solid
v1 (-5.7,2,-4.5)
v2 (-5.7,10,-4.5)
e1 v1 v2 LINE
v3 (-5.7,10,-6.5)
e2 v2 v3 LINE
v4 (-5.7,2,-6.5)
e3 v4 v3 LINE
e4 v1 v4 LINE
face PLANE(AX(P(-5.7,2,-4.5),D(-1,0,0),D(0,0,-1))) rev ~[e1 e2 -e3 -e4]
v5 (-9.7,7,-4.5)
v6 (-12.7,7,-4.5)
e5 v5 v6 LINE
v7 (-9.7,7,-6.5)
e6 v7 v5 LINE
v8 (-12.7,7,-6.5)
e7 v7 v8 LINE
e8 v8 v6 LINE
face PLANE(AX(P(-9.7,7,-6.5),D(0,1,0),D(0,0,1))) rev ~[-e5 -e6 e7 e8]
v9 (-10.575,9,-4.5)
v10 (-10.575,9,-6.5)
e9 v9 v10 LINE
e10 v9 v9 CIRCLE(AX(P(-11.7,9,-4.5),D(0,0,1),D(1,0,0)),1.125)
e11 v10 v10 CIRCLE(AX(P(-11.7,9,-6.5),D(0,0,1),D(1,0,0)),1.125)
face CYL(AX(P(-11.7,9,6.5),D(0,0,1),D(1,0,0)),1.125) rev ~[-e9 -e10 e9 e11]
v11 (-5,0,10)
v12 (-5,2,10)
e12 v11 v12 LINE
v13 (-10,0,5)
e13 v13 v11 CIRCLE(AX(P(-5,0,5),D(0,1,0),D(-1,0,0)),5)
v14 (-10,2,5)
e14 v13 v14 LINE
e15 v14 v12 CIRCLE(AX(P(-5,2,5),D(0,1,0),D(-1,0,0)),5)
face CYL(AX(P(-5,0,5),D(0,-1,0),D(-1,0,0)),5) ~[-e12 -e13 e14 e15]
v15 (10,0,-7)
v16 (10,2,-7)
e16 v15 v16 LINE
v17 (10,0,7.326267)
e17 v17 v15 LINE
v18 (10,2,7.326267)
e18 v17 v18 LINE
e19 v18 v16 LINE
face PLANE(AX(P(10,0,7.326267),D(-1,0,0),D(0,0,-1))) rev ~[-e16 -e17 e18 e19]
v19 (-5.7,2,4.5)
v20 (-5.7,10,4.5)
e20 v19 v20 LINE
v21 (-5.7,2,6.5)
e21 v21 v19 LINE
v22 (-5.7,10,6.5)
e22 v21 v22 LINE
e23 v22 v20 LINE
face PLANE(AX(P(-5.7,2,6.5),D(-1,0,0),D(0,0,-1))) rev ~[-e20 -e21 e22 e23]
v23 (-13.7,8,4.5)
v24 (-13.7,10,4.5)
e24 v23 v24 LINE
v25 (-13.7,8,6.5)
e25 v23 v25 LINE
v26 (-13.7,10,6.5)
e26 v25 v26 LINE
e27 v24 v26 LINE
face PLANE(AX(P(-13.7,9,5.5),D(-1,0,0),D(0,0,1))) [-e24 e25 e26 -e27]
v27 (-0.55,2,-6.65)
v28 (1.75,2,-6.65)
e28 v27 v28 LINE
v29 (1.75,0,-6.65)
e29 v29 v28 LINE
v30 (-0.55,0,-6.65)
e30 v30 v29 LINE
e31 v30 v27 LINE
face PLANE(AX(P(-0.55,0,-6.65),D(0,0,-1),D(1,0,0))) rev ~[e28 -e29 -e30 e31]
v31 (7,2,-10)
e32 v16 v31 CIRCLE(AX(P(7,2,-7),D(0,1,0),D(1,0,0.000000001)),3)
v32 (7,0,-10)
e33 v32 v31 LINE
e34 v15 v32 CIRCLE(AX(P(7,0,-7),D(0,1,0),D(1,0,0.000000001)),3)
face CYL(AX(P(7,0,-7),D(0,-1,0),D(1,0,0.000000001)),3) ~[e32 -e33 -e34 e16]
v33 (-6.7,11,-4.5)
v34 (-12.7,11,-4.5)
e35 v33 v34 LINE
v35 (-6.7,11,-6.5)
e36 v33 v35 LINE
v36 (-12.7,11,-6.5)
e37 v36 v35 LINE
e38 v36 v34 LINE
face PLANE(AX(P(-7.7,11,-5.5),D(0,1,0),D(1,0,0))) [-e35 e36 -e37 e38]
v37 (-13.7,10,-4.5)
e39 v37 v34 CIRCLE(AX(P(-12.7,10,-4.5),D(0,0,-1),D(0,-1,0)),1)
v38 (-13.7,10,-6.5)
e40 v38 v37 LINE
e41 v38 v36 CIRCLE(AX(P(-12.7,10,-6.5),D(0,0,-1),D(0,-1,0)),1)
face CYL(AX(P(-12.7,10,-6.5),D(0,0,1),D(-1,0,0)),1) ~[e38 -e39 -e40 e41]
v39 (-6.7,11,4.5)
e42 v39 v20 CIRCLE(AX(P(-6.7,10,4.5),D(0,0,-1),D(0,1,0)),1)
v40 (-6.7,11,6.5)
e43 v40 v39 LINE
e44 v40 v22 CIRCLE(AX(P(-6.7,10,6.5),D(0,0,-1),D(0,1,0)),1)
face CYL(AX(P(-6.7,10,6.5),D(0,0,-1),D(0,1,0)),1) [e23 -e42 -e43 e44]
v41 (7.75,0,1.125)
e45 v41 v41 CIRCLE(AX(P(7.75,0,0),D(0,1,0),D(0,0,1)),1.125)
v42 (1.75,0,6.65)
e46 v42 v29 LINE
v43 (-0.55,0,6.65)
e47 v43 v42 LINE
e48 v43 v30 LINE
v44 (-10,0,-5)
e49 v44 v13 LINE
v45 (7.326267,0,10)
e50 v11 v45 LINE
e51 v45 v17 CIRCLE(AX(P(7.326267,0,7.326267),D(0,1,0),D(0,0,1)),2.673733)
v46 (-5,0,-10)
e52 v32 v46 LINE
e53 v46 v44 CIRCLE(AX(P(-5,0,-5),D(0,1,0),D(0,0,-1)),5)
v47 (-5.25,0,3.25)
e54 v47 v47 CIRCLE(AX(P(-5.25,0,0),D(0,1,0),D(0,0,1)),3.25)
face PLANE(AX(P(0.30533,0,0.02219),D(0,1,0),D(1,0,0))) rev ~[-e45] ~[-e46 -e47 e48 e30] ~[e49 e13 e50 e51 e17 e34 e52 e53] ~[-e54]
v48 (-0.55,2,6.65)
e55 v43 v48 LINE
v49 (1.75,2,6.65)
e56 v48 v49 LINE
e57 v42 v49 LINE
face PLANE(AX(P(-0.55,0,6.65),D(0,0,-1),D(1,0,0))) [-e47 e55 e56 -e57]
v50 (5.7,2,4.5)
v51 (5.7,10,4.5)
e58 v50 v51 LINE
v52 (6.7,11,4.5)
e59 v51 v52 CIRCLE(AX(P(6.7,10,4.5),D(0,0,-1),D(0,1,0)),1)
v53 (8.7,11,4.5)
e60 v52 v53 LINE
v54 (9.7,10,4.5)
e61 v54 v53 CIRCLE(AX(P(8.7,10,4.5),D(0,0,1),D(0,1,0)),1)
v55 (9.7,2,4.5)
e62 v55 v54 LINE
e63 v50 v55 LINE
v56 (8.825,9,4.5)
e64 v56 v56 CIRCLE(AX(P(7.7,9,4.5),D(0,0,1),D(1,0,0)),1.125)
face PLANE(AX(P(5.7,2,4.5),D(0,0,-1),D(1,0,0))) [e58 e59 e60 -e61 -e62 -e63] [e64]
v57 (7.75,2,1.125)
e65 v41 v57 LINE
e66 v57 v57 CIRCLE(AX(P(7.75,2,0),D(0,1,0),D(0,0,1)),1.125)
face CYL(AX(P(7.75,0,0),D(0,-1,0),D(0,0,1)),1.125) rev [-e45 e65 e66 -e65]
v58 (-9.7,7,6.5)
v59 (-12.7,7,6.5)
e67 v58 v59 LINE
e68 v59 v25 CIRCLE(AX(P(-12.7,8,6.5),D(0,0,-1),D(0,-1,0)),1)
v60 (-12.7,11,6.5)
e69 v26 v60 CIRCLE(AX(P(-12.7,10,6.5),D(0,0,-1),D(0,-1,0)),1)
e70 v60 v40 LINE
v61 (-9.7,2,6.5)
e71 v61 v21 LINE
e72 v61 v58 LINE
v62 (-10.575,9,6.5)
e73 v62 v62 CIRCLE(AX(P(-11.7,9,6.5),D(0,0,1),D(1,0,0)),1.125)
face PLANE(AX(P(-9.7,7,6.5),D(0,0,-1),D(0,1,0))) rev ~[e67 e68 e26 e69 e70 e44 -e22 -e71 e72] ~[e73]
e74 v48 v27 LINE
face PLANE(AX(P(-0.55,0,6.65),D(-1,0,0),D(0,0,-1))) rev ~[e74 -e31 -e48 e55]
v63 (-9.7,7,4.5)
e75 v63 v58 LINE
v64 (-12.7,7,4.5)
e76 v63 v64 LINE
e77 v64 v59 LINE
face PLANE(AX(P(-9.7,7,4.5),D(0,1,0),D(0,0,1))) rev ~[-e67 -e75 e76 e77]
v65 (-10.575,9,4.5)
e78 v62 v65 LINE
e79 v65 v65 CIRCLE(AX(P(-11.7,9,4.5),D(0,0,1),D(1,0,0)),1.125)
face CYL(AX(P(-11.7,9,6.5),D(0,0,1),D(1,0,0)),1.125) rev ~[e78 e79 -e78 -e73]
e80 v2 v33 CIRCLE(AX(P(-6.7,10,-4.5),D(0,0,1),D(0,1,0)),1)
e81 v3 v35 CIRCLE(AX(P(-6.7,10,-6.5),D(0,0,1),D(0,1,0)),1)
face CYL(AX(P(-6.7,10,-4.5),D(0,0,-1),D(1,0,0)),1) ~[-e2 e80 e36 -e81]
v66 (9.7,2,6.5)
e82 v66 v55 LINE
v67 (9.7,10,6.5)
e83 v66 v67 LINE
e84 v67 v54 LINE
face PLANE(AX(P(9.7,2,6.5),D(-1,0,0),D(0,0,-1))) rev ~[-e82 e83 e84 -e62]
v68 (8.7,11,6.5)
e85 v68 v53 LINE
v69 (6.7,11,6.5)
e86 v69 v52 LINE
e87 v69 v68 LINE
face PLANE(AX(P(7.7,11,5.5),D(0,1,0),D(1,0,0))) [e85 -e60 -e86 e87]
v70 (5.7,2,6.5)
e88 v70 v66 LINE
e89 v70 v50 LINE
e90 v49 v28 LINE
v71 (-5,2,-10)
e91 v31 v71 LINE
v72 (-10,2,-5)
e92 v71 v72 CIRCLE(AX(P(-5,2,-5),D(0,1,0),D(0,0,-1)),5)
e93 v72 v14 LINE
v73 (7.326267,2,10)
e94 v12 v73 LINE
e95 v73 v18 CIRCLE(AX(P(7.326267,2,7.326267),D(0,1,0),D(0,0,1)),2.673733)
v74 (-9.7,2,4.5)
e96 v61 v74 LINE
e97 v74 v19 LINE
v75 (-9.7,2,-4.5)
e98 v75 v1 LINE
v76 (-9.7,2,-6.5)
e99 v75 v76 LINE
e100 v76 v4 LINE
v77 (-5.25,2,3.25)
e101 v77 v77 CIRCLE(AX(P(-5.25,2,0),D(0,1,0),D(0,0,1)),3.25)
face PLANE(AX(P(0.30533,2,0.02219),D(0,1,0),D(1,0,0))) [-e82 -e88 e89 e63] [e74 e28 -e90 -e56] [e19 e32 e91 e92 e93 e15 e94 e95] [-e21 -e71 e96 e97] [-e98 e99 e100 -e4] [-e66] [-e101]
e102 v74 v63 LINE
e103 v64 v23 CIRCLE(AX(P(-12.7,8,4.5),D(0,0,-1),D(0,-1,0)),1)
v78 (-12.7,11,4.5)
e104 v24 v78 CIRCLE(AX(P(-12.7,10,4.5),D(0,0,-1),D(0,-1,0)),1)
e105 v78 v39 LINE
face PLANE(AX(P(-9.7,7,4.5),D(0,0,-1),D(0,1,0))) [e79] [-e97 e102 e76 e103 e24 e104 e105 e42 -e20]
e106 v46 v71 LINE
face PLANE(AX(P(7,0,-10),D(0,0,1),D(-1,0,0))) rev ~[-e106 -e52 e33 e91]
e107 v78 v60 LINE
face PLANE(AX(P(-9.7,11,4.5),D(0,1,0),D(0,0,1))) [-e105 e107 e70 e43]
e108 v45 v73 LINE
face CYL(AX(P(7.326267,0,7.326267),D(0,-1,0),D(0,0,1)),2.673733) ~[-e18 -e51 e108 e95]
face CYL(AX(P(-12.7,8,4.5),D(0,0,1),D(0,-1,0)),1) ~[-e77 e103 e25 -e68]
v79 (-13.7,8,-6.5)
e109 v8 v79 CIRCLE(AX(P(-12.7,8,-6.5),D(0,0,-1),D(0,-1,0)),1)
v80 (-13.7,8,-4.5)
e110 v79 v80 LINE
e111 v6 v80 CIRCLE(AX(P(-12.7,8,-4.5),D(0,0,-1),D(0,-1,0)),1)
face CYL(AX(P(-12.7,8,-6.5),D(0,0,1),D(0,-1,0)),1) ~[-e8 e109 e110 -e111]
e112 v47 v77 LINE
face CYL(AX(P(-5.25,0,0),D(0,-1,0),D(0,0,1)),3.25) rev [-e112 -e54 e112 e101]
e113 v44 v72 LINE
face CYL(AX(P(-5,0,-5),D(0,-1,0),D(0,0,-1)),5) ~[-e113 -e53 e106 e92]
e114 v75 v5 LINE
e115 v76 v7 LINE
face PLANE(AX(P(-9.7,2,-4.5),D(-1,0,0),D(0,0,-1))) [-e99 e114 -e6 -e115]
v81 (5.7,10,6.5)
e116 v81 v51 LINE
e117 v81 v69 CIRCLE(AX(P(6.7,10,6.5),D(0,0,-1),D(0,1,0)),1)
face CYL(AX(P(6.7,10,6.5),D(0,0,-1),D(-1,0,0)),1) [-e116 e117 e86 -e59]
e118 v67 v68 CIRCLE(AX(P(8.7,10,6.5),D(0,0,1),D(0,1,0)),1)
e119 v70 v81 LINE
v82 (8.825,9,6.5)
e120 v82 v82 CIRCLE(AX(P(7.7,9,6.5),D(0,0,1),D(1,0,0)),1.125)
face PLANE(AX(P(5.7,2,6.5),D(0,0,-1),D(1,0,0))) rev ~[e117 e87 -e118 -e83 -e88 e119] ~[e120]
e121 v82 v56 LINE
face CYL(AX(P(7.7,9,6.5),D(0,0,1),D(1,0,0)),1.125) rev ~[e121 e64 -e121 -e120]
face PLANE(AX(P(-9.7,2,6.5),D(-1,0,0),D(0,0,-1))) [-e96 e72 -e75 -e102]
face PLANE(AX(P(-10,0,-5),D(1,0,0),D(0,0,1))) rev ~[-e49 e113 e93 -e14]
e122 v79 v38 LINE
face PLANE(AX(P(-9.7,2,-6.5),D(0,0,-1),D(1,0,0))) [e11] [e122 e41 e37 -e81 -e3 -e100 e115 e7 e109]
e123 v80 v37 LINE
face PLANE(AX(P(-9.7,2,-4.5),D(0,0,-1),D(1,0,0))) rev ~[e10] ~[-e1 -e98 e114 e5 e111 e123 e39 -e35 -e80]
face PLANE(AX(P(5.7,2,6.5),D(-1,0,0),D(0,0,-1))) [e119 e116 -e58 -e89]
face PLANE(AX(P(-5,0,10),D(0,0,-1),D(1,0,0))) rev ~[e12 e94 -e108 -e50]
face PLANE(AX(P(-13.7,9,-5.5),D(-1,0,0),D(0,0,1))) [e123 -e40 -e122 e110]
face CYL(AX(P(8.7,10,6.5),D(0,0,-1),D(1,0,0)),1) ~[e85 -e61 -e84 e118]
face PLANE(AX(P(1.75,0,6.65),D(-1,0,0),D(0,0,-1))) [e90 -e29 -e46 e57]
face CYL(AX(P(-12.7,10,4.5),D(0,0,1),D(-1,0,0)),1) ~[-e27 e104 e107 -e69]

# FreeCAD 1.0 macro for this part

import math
import FreeCAD as App
import Part
import Sketcher
Q = App.Units.Quantity


def edges_at(feature, points):
    """Names of the edges that pass closest to the given points."""
    edges = feature.Shape.Edges
    near = lambda p: min(range(len(edges)), key=lambda i: edges[i].distToShape(Part.Vertex(*p))[0])
    return sorted({f"Edge{near(p) + 1}" for p in points})

doc = App.newDocument("Part")
body = doc.addObject("PartDesign::Body", "Body")

sketch1 = body.newObject("Sketcher::SketchObject", "Sketch")
sketch1.AttachmentSupport = (doc.getObject("XZ_Plane"), [""])
sketch1.MapMode = "FlatFace"
sketch1.addGeometry(Part.LineSegment(App.Vector(-5, 10, 0), App.Vector(7.3, 10, 0)), False)
sketch1.addGeometry(Part.ArcOfCircle(Part.Circle(App.Vector(7.3, 7.3, 0), App.Vector(0, 0, 1), 2.7), math.radians(0), math.radians(90)), False)
sketch1.addGeometry(Part.LineSegment(App.Vector(10, 7.3, 0), App.Vector(10, -7, 0)), False)
sketch1.addGeometry(Part.ArcOfCircle(Part.Circle(App.Vector(7, -7, 0), App.Vector(0, 0, 1), 3), math.radians(-90), math.radians(0)), False)
sketch1.addGeometry(Part.LineSegment(App.Vector(7, -10, 0), App.Vector(-5, -10, 0)), False)
sketch1.addGeometry(Part.ArcOfCircle(Part.Circle(App.Vector(-5, -5, 0), App.Vector(0, 0, 1), 5), math.radians(180), math.radians(270)), False)
sketch1.addGeometry(Part.LineSegment(App.Vector(-10, -5, 0), App.Vector(-10, 5, 0)), False)
sketch1.addGeometry(Part.ArcOfCircle(Part.Circle(App.Vector(-5, 5, 0), App.Vector(0, 0, 1), 5), math.radians(90), math.radians(180)), False)
sketch1.addGeometry(Part.Circle(App.Vector(-5.2, 0, 0), App.Vector(0, 0, 1), 3.2), False)
sketch1.addGeometry(Part.LineSegment(App.Vector(1.8, 6.7, 0), App.Vector(-0.6, 6.7, 0)), False)
sketch1.addGeometry(Part.LineSegment(App.Vector(-0.6, 6.7, 0), App.Vector(-0.6, -6.7, 0)), False)
sketch1.addGeometry(Part.LineSegment(App.Vector(-0.6, -6.7, 0), App.Vector(1.8, -6.7, 0)), False)
sketch1.addGeometry(Part.LineSegment(App.Vector(1.8, -6.7, 0), App.Vector(1.8, 6.7, 0)), False)
sketch1.addGeometry(Part.Circle(App.Vector(7.8, 0, 0), App.Vector(0, 0, 1), 1.1), False)
sketch1.addConstraint(Sketcher.Constraint("Tangent", 0, 2, 1, 2))
sketch1.addConstraint(Sketcher.Constraint("Tangent", 1, 1, 2, 1))
sketch1.addConstraint(Sketcher.Constraint("Tangent", 2, 2, 3, 2))
sketch1.addConstraint(Sketcher.Constraint("Tangent", 3, 1, 4, 1))
sketch1.addConstraint(Sketcher.Constraint("Tangent", 4, 2, 5, 2))
sketch1.addConstraint(Sketcher.Constraint("Tangent", 5, 1, 6, 1))
sketch1.addConstraint(Sketcher.Constraint("Tangent", 6, 2, 7, 2))
sketch1.addConstraint(Sketcher.Constraint("Tangent", 7, 1, 0, 1))
sketch1.addConstraint(Sketcher.Constraint("Coincident", 9, 2, 10, 1))
sketch1.addConstraint(Sketcher.Constraint("Coincident", 10, 2, 11, 1))
sketch1.addConstraint(Sketcher.Constraint("Coincident", 11, 2, 12, 1))
sketch1.addConstraint(Sketcher.Constraint("Coincident", 12, 2, 9, 1))
sketch1.addConstraint(Sketcher.Constraint("Horizontal", 0))
sketch1.addConstraint(Sketcher.Constraint("Vertical", 2))
sketch1.addConstraint(Sketcher.Constraint("Horizontal", 4))
sketch1.addConstraint(Sketcher.Constraint("Vertical", 6))
sketch1.addConstraint(Sketcher.Constraint("Horizontal", 9))
sketch1.addConstraint(Sketcher.Constraint("Vertical", 10))
sketch1.addConstraint(Sketcher.Constraint("Horizontal", 11))
sketch1.addConstraint(Sketcher.Constraint("Vertical", 12))
sketch1.addConstraint(Sketcher.Constraint("Equal", 5, 7))
sketch1.addConstraint(Sketcher.Constraint("PointOnObject", 8, 3, -1))
sketch1.addConstraint(Sketcher.Constraint("PointOnObject", 13, 3, -1))
sketch1.addConstraint(Sketcher.Constraint("Radius", 3, Q("3 mm")))
sketch1.addConstraint(Sketcher.Constraint("Radius", 5, Q("5 mm")))
sketch1.addConstraint(Sketcher.Constraint("Diameter", 8, Q("6.5 mm")))
sketch1.addConstraint(Sketcher.Constraint("Diameter", 13, Q("2.25 mm")))
sketch1.addConstraint(Sketcher.Constraint("DistanceX", 4, 2, 4, 1, Q("12 mm")))
sketch1.addConstraint(Sketcher.Constraint("DistanceY", 6, 1, 6, 2, Q("10 mm")))
sketch1.addConstraint(Sketcher.Constraint("DistanceX", 9, 2, 9, 1, Q("2.3 mm")))
sketch1.addConstraint(Sketcher.Constraint("DistanceY", 10, 2, 10, 1, Q("13.3 mm")))
sketch1.addConstraint(Sketcher.Constraint("DistanceX", -1, 1, 3, 3, Q("7 mm")))
sketch1.addConstraint(Sketcher.Constraint("DistanceY", 3, 3, -1, 1, Q("7 mm")))
sketch1.addConstraint(Sketcher.Constraint("DistanceX", 8, 3, 13, 3, Q("13 mm")))
sketch1.addConstraint(Sketcher.Constraint("DistanceX", 8, 3, 9, 2, Q("4.7 mm")))
sketch1.addConstraint(Sketcher.Constraint("DistanceX", 8, 3, -1, 1, Q("5.25 mm")))
sketch1.addConstraint(Sketcher.Constraint("DistanceY", -1, 1, 9, 2, Q("6.65 mm")))
sketch1.addConstraint(Sketcher.Constraint("Radius", 1, Q("2.673733 mm")))
pad1 = body.newObject("PartDesign::Pad", "Pad")
pad1.Profile = sketch1
pad1.Length = 2
pad1.Reversed = True

sketch2 = body.newObject("Sketcher::SketchObject", "Sketch001")
sketch2.AttachmentSupport = (doc.getObject("XZ_Plane"), [""])
sketch2.MapMode = "FlatFace"
sketch2.AttachmentOffset = App.Placement(App.Vector(0, 0, -2), App.Rotation())
sketch2.addGeometry(Part.LineSegment(App.Vector(-9.7, -6.5, 0), App.Vector(-9.7, -4.5, 0)), False)
sketch2.addGeometry(Part.LineSegment(App.Vector(-9.7, -4.5, 0), App.Vector(-5.7, -4.5, 0)), False)
sketch2.addGeometry(Part.LineSegment(App.Vector(-5.7, -4.5, 0), App.Vector(-5.7, -6.5, 0)), False)
sketch2.addGeometry(Part.LineSegment(App.Vector(-5.7, -6.5, 0), App.Vector(-9.7, -6.5, 0)), False)
sketch2.addGeometry(Part.LineSegment(App.Vector(-9.7, 4.5, 0), App.Vector(-9.7, 6.5, 0)), False)
sketch2.addGeometry(Part.LineSegment(App.Vector(-9.7, 6.5, 0), App.Vector(-5.7, 6.5, 0)), False)
sketch2.addGeometry(Part.LineSegment(App.Vector(-5.7, 6.5, 0), App.Vector(-5.7, 4.5, 0)), False)
sketch2.addGeometry(Part.LineSegment(App.Vector(-5.7, 4.5, 0), App.Vector(-9.7, 4.5, 0)), False)
sketch2.addGeometry(Part.LineSegment(App.Vector(5.7, 4.5, 0), App.Vector(5.7, 6.5, 0)), False)
sketch2.addGeometry(Part.LineSegment(App.Vector(5.7, 6.5, 0), App.Vector(9.7, 6.5, 0)), False)
sketch2.addGeometry(Part.LineSegment(App.Vector(9.7, 6.5, 0), App.Vector(9.7, 4.5, 0)), False)
sketch2.addGeometry(Part.LineSegment(App.Vector(9.7, 4.5, 0), App.Vector(5.7, 4.5, 0)), False)
sketch2.addConstraint(Sketcher.Constraint("Coincident", 0, 2, 1, 1))
sketch2.addConstraint(Sketcher.Constraint("Coincident", 1, 2, 2, 1))
sketch2.addConstraint(Sketcher.Constraint("Coincident", 2, 2, 3, 1))
sketch2.addConstraint(Sketcher.Constraint("Coincident", 3, 2, 0, 1))
sketch2.addConstraint(Sketcher.Constraint("Coincident", 4, 2, 5, 1))
sketch2.addConstraint(Sketcher.Constraint("Coincident", 5, 2, 6, 1))
sketch2.addConstraint(Sketcher.Constraint("Coincident", 6, 2, 7, 1))
sketch2.addConstraint(Sketcher.Constraint("Coincident", 7, 2, 4, 1))
sketch2.addConstraint(Sketcher.Constraint("Coincident", 8, 2, 9, 1))
sketch2.addConstraint(Sketcher.Constraint("Coincident", 9, 2, 10, 1))
sketch2.addConstraint(Sketcher.Constraint("Coincident", 10, 2, 11, 1))
sketch2.addConstraint(Sketcher.Constraint("Coincident", 11, 2, 8, 1))
sketch2.addConstraint(Sketcher.Constraint("Vertical", 0))
sketch2.addConstraint(Sketcher.Constraint("Horizontal", 1))
sketch2.addConstraint(Sketcher.Constraint("Vertical", 2))
sketch2.addConstraint(Sketcher.Constraint("Horizontal", 3))
sketch2.addConstraint(Sketcher.Constraint("Vertical", 4))
sketch2.addConstraint(Sketcher.Constraint("Horizontal", 5))
sketch2.addConstraint(Sketcher.Constraint("Vertical", 6))
sketch2.addConstraint(Sketcher.Constraint("Horizontal", 7))
sketch2.addConstraint(Sketcher.Constraint("Vertical", 8))
sketch2.addConstraint(Sketcher.Constraint("Horizontal", 9))
sketch2.addConstraint(Sketcher.Constraint("Vertical", 10))
sketch2.addConstraint(Sketcher.Constraint("Horizontal", 11))
sketch2.addConstraint(Sketcher.Constraint("Symmetric", 2, 2, 8, 2, -1, 1))
sketch2.addConstraint(Sketcher.Constraint("Symmetric", 0, 2, 10, 2, -1, 1))
sketch2.addConstraint(Sketcher.Constraint("Symmetric", 5, 2, 8, 2, -2))
sketch2.addConstraint(Sketcher.Constraint("Symmetric", 7, 2, 10, 2, -2))
sketch2.addConstraint(Sketcher.Constraint("DistanceX", 1, 1, 1, 2, Q("4 mm")))
sketch2.addConstraint(Sketcher.Constraint("DistanceY", 0, 1, 0, 2, Q("2 mm")))
sketch2.addConstraint(Sketcher.Constraint("DistanceY", 0, 2, 4, 2, Q("11 mm")))
sketch2.addConstraint(Sketcher.Constraint("DistanceX", 0, 2, -1, 1, Q("9.7 mm")))
pad2 = body.newObject("PartDesign::Pad", "Pad001")
pad2.Profile = sketch2
pad2.Length = 9
pad2.Reversed = True

sketch3 = body.newObject("Sketcher::SketchObject", "Sketch002")
sketch3.AttachmentSupport = (doc.getObject("XY_Plane"), [""])
sketch3.MapMode = "FlatFace"
sketch3.AttachmentOffset = App.Placement(App.Vector(0, 0, 6.5), App.Rotation())
sketch3.addGeometry(Part.Circle(App.Vector(7.7, 9, 0), App.Vector(0, 0, 1), 1.1), False)
sketch3.addConstraint(Sketcher.Constraint("Diameter", 0, Q("2.25 mm")))
sketch3.addConstraint(Sketcher.Constraint("DistanceY", -1, 1, 0, 3, Q("9 mm")))
sketch3.addConstraint(Sketcher.Constraint("DistanceX", -1, 1, 0, 3, Q("7.7 mm")))
pocket1 = body.newObject("PartDesign::Pocket", "Pocket")
pocket1.Profile = sketch3
pocket1.Length = 13

sketch4 = body.newObject("Sketcher::SketchObject", "Sketch003")
sketch4.AttachmentSupport = (doc.getObject("YZ_Plane"), [""])
sketch4.MapMode = "FlatFace"
sketch4.AttachmentOffset = App.Placement(App.Vector(0, 0, -9.7), App.Rotation())
sketch4.addGeometry(Part.LineSegment(App.Vector(11, 4.5, 0), App.Vector(7, 4.5, 0)), False)
sketch4.addGeometry(Part.LineSegment(App.Vector(7, 4.5, 0), App.Vector(7, 6.5, 0)), False)
sketch4.addGeometry(Part.LineSegment(App.Vector(7, 6.5, 0), App.Vector(11, 6.5, 0)), False)
sketch4.addGeometry(Part.LineSegment(App.Vector(11, 6.5, 0), App.Vector(11, 4.5, 0)), False)
sketch4.addGeometry(Part.LineSegment(App.Vector(11, -6.5, 0), App.Vector(7, -6.5, 0)), False)
sketch4.addGeometry(Part.LineSegment(App.Vector(7, -6.5, 0), App.Vector(7, -4.5, 0)), False)
sketch4.addGeometry(Part.LineSegment(App.Vector(7, -4.5, 0), App.Vector(11, -4.5, 0)), False)
sketch4.addGeometry(Part.LineSegment(App.Vector(11, -4.5, 0), App.Vector(11, -6.5, 0)), False)
sketch4.addConstraint(Sketcher.Constraint("Coincident", 0, 2, 1, 1))
sketch4.addConstraint(Sketcher.Constraint("Coincident", 1, 2, 2, 1))
sketch4.addConstraint(Sketcher.Constraint("Coincident", 2, 2, 3, 1))
sketch4.addConstraint(Sketcher.Constraint("Coincident", 3, 2, 0, 1))
sketch4.addConstraint(Sketcher.Constraint("Coincident", 4, 2, 5, 1))
sketch4.addConstraint(Sketcher.Constraint("Coincident", 5, 2, 6, 1))
sketch4.addConstraint(Sketcher.Constraint("Coincident", 6, 2, 7, 1))
sketch4.addConstraint(Sketcher.Constraint("Coincident", 7, 2, 4, 1))
sketch4.addConstraint(Sketcher.Constraint("Horizontal", 0))
sketch4.addConstraint(Sketcher.Constraint("Vertical", 1))
sketch4.addConstraint(Sketcher.Constraint("Horizontal", 2))
sketch4.addConstraint(Sketcher.Constraint("Vertical", 3))
sketch4.addConstraint(Sketcher.Constraint("Horizontal", 4))
sketch4.addConstraint(Sketcher.Constraint("Vertical", 5))
sketch4.addConstraint(Sketcher.Constraint("Horizontal", 6))
sketch4.addConstraint(Sketcher.Constraint("Vertical", 7))
sketch4.addConstraint(Sketcher.Constraint("Symmetric", 1, 2, 4, 2, -1))
sketch4.addConstraint(Sketcher.Constraint("Symmetric", 3, 2, 6, 2, -1))
sketch4.addConstraint(Sketcher.Constraint("DistanceX", 0, 2, 0, 1, Q("4 mm")))
sketch4.addConstraint(Sketcher.Constraint("DistanceY", 1, 1, 1, 2, Q("2 mm")))
sketch4.addConstraint(Sketcher.Constraint("DistanceX", -1, 1, 0, 2, Q("7 mm")))
sketch4.addConstraint(Sketcher.Constraint("DistanceY", 4, 2, 0, 2, Q("11 mm")))
pad3 = body.newObject("PartDesign::Pad", "Pad002")
pad3.Profile = sketch4
pad3.Length = 4
pad3.Reversed = True

sketch5 = body.newObject("Sketcher::SketchObject", "Sketch004")
sketch5.AttachmentSupport = (doc.getObject("XY_Plane"), [""])
sketch5.MapMode = "FlatFace"
sketch5.AttachmentOffset = App.Placement(App.Vector(0, 0, 6.5), App.Rotation())
sketch5.addGeometry(Part.Circle(App.Vector(-11.7, 9, 0), App.Vector(0, 0, 1), 1.1), False)
sketch5.addConstraint(Sketcher.Constraint("Diameter", 0, Q("2.25 mm")))
sketch5.addConstraint(Sketcher.Constraint("DistanceY", -1, 1, 0, 3, Q("9 mm")))
sketch5.addConstraint(Sketcher.Constraint("DistanceX", 0, 3, -1, 1, Q("11.7 mm")))
pocket2 = body.newObject("PartDesign::Pocket", "Pocket001")
pocket2.Profile = sketch5
pocket2.Type = "ThroughAll"
doc.recompute()

fillet = body.newObject("PartDesign::Fillet", "Fillet")
fillet.Base = (pocket2, edges_at(pocket2, [
    (-13.7, 11, -5.5),
    (-13.7, 7, -5.5),
    (-5.7, 11, -5.5),
    (-5.7, 11, 5.5),
    (5.7, 11, 5.5),
    (9.7, 11, 5.5),
    (-13.7, 7, 5.5),
    (-13.7, 11, 5.5),
]))
fillet.Radius = 1

doc.recompute()
